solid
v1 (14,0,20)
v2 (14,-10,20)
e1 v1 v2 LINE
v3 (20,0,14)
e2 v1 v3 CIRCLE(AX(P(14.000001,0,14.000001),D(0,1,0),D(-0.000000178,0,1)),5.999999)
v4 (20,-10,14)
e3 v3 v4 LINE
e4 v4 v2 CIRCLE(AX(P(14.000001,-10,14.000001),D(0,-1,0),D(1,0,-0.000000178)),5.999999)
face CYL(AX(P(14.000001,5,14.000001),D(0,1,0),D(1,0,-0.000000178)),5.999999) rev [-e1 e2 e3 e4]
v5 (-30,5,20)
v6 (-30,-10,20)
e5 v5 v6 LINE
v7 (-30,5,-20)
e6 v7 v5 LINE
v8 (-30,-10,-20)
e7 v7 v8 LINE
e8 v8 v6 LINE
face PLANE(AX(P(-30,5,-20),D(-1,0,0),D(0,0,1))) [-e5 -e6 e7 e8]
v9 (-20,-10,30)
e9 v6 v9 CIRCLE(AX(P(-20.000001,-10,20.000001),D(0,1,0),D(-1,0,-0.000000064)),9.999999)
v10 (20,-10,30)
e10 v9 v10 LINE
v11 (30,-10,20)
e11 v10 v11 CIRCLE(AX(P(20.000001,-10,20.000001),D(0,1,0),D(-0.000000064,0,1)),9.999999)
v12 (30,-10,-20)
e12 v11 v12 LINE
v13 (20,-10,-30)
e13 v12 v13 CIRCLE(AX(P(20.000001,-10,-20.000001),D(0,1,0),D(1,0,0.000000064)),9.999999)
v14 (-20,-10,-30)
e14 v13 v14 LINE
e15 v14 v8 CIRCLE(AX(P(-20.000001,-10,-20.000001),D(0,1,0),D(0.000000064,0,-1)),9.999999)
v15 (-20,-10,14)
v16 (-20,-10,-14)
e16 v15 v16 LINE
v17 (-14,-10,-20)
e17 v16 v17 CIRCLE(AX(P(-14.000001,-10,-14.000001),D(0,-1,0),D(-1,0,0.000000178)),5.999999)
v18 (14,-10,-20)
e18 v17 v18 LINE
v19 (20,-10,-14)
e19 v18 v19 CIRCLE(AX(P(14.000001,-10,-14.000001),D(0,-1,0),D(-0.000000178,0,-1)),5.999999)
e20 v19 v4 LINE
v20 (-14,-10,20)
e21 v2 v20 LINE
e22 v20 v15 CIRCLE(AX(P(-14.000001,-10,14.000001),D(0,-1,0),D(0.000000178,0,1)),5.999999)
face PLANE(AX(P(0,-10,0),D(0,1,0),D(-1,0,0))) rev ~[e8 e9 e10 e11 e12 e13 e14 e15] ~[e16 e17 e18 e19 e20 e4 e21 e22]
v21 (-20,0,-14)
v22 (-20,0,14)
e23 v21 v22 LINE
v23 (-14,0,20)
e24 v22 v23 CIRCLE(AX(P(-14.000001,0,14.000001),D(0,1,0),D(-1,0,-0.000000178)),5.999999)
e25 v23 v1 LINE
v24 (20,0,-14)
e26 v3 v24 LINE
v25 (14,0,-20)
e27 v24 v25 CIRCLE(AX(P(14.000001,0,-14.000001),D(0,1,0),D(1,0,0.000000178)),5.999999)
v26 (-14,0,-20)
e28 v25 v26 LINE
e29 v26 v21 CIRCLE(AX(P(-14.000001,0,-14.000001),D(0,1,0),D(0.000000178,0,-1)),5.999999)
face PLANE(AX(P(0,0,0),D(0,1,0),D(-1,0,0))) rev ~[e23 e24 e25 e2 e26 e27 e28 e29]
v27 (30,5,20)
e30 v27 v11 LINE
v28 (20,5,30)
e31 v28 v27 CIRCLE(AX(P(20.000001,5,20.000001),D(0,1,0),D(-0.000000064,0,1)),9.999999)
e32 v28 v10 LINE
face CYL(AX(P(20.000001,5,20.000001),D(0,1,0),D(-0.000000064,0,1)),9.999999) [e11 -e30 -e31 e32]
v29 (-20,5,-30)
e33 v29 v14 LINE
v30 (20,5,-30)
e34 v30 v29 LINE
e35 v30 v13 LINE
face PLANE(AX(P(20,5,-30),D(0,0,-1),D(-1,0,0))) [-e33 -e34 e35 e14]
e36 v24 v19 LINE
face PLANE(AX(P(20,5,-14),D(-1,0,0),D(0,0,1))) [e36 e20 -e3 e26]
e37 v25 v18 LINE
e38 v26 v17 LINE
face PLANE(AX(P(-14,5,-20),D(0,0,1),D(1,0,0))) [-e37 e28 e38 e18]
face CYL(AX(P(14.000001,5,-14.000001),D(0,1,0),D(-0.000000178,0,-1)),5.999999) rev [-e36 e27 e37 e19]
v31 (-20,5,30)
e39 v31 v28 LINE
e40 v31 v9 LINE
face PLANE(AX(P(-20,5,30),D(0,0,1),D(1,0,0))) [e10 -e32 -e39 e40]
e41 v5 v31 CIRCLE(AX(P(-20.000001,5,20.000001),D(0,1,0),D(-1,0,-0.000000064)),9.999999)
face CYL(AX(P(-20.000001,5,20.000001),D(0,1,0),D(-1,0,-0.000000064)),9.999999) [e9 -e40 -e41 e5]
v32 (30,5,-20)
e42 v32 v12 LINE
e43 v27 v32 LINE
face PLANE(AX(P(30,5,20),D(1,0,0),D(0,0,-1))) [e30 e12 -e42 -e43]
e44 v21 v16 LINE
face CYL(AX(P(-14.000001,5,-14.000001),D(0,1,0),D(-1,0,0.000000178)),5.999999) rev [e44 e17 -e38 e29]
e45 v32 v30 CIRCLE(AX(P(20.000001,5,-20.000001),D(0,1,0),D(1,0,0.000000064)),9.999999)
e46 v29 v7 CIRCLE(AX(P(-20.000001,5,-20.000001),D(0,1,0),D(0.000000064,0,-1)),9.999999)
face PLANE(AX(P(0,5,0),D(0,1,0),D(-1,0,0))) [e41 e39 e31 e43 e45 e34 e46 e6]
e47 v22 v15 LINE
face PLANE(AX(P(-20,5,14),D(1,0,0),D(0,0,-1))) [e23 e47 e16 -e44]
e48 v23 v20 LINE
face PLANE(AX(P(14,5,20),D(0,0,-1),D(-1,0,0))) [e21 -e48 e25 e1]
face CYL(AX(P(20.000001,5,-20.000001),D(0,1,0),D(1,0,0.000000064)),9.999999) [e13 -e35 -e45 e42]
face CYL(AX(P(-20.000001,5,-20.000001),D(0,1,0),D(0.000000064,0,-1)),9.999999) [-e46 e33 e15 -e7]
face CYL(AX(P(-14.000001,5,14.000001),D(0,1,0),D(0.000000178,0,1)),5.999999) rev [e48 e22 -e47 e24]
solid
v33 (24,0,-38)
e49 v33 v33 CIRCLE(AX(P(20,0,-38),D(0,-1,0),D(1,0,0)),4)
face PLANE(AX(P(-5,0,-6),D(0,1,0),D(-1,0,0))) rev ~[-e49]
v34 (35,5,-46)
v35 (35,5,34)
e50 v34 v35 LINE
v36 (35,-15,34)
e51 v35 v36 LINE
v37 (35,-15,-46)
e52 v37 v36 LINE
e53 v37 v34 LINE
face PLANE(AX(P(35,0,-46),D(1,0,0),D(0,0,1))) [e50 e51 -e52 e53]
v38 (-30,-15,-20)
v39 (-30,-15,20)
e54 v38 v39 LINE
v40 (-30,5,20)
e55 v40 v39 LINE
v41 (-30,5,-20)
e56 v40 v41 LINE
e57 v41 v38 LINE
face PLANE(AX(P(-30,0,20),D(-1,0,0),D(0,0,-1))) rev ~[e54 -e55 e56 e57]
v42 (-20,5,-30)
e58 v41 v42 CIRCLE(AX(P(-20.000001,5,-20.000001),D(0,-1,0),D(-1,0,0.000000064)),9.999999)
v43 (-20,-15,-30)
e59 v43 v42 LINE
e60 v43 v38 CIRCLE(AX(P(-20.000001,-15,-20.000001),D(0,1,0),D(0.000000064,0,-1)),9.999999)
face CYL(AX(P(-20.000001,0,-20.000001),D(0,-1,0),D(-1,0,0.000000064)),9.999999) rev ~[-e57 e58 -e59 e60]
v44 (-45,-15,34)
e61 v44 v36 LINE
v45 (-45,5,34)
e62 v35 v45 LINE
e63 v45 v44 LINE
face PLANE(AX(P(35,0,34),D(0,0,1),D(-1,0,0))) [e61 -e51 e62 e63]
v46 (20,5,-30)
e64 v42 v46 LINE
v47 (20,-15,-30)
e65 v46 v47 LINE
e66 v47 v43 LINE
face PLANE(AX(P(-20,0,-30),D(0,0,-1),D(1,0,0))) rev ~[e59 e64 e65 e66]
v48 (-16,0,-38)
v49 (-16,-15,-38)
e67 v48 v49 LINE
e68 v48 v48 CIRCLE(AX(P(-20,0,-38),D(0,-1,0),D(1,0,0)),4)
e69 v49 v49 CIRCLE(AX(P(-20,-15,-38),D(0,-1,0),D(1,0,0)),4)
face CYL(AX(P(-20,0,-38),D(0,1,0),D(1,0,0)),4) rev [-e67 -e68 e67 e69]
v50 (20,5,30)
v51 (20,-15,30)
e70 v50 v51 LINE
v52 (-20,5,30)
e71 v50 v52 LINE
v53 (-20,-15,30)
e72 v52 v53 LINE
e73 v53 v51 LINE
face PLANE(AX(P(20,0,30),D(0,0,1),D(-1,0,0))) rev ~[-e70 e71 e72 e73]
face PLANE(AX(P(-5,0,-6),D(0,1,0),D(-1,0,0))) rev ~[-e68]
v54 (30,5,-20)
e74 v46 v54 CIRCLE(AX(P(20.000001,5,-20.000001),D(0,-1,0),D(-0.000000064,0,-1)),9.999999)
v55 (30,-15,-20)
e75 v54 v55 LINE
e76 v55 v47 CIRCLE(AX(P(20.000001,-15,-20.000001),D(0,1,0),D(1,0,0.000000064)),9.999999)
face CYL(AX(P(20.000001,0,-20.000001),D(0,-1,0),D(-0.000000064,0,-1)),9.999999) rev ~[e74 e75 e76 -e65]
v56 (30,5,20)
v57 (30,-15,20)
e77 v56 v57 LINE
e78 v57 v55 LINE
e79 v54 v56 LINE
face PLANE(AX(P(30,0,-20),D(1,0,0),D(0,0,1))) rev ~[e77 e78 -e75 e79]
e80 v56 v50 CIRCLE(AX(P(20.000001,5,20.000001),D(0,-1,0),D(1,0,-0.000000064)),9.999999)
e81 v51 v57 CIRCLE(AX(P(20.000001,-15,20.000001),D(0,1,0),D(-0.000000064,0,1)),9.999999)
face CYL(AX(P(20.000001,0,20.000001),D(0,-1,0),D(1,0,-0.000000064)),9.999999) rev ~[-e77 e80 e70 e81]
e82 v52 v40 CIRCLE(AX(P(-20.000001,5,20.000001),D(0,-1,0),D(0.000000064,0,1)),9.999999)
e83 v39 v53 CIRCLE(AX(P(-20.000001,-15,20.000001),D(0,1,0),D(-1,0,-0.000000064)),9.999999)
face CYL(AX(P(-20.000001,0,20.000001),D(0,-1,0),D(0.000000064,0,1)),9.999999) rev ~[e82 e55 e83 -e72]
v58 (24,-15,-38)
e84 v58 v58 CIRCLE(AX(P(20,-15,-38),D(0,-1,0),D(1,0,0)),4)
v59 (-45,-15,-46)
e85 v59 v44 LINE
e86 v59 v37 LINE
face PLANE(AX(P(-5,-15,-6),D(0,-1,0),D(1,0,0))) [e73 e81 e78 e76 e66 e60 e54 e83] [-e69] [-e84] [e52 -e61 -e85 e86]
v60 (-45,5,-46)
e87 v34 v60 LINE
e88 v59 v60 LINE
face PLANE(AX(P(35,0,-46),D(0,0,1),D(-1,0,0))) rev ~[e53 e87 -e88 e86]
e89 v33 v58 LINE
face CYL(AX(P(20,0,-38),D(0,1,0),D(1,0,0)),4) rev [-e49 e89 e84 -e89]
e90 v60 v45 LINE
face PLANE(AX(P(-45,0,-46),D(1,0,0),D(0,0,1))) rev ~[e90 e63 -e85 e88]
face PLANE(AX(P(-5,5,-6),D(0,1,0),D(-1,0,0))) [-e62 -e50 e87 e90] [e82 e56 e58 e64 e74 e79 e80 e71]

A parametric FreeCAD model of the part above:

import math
import FreeCAD as App
import Part
import Sketcher
from FreeCAD import Vector
Q = App.Units.Quantity


def add_polygon(sketch, points):
    """Adds a closed chain of lines whose ends are joined by coincident constraints."""
    first, n = sketch.GeometryCount, len(points)
    for a, b in zip(points, points[1:] + points[:1]):
        sketch.addGeometry(Part.LineSegment(App.Vector(*a, 0), App.Vector(*b, 0)), False)
    for i in range(n):
        sketch.addConstraint(Sketcher.Constraint("Coincident", first + i, 2, first + (i + 1) % n, 1))

doc = App.newDocument("Part")
body = doc.addObject("PartDesign::Body", "Body")

# Sketch on XZ plane
sketch1 = body.newObject("Sketcher::SketchObject", "Sketch")
sketch1.AttachmentSupport = (doc.getObject("XZ_Plane"), [""])
sketch1.MapMode = "FlatFace"
add_polygon(sketch1, [(-45, 34), (-45, -46), (35, -46), (35, 34)])  # lines 0-3
sketch1.addGeometry(Part.Circle(Vector(-20, -38, 0), Vector(0, 0, 1), 4), False)  # 4
sketch1.addGeometry(Part.Circle(Vector(20, -38, 0), Vector(0, 0, 1), 4), False)  # 5
sketch1.addGeometry(Part.LineSegment(Vector(30, 20, 0), Vector(30, -20, 0)), False)  # 6
sketch1.addGeometry(Part.ArcOfCircle(Part.Circle(Vector(20, -20, 0), Vector(0, 0, 1), 10), math.radians(-90), math.radians(0)), False)  # 7
sketch1.addGeometry(Part.LineSegment(Vector(20, -30, 0), Vector(-20, -30, 0)), False)  # 8
sketch1.addGeometry(Part.ArcOfCircle(Part.Circle(Vector(-20, -20, 0), Vector(0, 0, 1), 10), math.radians(180), math.radians(270)), False)  # 9
sketch1.addGeometry(Part.LineSegment(Vector(-30, -20, 0), Vector(-30, 20, 0)), False)  # 10
sketch1.addGeometry(Part.ArcOfCircle(Part.Circle(Vector(-20, 20, 0), Vector(0, 0, 1), 10), math.radians(90), math.radians(180)), False)  # 11
sketch1.addGeometry(Part.LineSegment(Vector(-20, 30, 0), Vector(20, 30, 0)), False)  # 12
sketch1.addGeometry(Part.ArcOfCircle(Part.Circle(Vector(20, 20, 0), Vector(0, 0, 1), 10), math.radians(0), math.radians(90)), False)  # 13
sketch1.addConstraint([
    Sketcher.Constraint("Tangent", 6, 2, 7, 2),
    Sketcher.Constraint("Tangent", 7, 1, 8, 1),
    Sketcher.Constraint("Tangent", 8, 2, 9, 2),
    Sketcher.Constraint("Tangent", 9, 1, 10, 1),
    Sketcher.Constraint("Tangent", 10, 2, 11, 2),
    Sketcher.Constraint("Tangent", 11, 1, 12, 1),
    Sketcher.Constraint("Tangent", 12, 2, 13, 2),
    Sketcher.Constraint("Tangent", 13, 1, 6, 1),
    Sketcher.Constraint("Vertical", 0),
    Sketcher.Constraint("Horizontal", 1),
    Sketcher.Constraint("Vertical", 2),
    Sketcher.Constraint("Horizontal", 3),
    Sketcher.Constraint("Vertical", 6),
    Sketcher.Constraint("Horizontal", 8),
    Sketcher.Constraint("Vertical", 10),
    Sketcher.Constraint("Horizontal", 12),
    Sketcher.Constraint("Equal", 4, 5),
    Sketcher.Constraint("Equal", 7, 9),
    Sketcher.Constraint("Equal", 9, 11),
    Sketcher.Constraint("Equal", 11, 13),
    Sketcher.Constraint("Symmetric", 7, 3, 11, 3, -1, 1),
    Sketcher.Constraint("Symmetric", 4, 3, 5, 3, -2),
    Sketcher.Constraint("Vertical", 5, 3, 7, 3),
    Sketcher.Constraint("Equal", 3, 0),
    Sketcher.Constraint("Equal", 12, 6),
    Sketcher.Constraint("Diameter", 4, Q("8 mm")),
    Sketcher.Constraint("Radius", 7, Q("9.999999 mm")),
    Sketcher.Constraint("DistanceX", 1, 1, 1, 2, Q("80 mm")),
    Sketcher.Constraint("DistanceX", 8, 2, 8, 1, Q("40 mm")),
    Sketcher.Constraint("DistanceY", 4, 3, -1, 1, Q("38 mm")),
    Sketcher.Constraint("DistanceX", 0, 2, -1, 1, Q("45 mm")),
    Sketcher.Constraint("DistanceY", 0, 2, -1, 1, Q("46 mm")),
])
pad1 = body.newObject("PartDesign::Pad", "Pad")
pad1.Profile = sketch1
pad1.Length = 15

# Sketch on XZ plane
sketch2 = body.newObject("Sketcher::SketchObject", "Sketch001")
sketch2.AttachmentSupport = (doc.getObject("XZ_Plane"), [""])
sketch2.MapMode = "FlatFace"
add_polygon(sketch2, [(35, 34), (35, -46), (-45, -46), (-45, 34)])  # lines 0-3
sketch2.addGeometry(Part.ArcOfCircle(Part.Circle(Vector(-20, -20, 0), Vector(0, 0, 1), 10), math.radians(180), math.radians(270)), False)  # 4
sketch2.addGeometry(Part.LineSegment(Vector(-20, -30, 0), Vector(20, -30, 0)), False)  # 5
sketch2.addGeometry(Part.ArcOfCircle(Part.Circle(Vector(20, -20, 0), Vector(0, 0, 1), 10), math.radians(-90), math.radians(0)), False)  # 6
sketch2.addGeometry(Part.LineSegment(Vector(30, -20, 0), Vector(30, 20, 0)), False)  # 7
sketch2.addGeometry(Part.ArcOfCircle(Part.Circle(Vector(20, 20, 0), Vector(0, 0, 1), 10), math.radians(0), math.radians(90)), False)  # 8
sketch2.addGeometry(Part.LineSegment(Vector(20, 30, 0), Vector(-20, 30, 0)), False)  # 9
sketch2.addGeometry(Part.ArcOfCircle(Part.Circle(Vector(-20, 20, 0), Vector(0, 0, 1), 10), math.radians(90), math.radians(180)), False)  # 10
sketch2.addGeometry(Part.LineSegment(Vector(-30, 20, 0), Vector(-30, -20, 0)), False)  # 11
sketch2.addConstraint([
    Sketcher.Constraint("Tangent", 4, 2, 5, 1),
    Sketcher.Constraint("Tangent", 5, 2, 6, 1),
    Sketcher.Constraint("Tangent", 6, 2, 7, 1),
    Sketcher.Constraint("Tangent", 7, 2, 8, 1),
    Sketcher.Constraint("Tangent", 8, 2, 9, 1),
    Sketcher.Constraint("Tangent", 9, 2, 10, 1),
    Sketcher.Constraint("Tangent", 10, 2, 11, 1),
    Sketcher.Constraint("Tangent", 11, 2, 4, 1),
    Sketcher.Constraint("Vertical", 0),
    Sketcher.Constraint("Horizontal", 1),
    Sketcher.Constraint("Vertical", 2),
    Sketcher.Constraint("Horizontal", 3),
    Sketcher.Constraint("Horizontal", 5),
    Sketcher.Constraint("Vertical", 7),
    Sketcher.Constraint("Horizontal", 9),
    Sketcher.Constraint("Vertical", 11),
    Sketcher.Constraint("Equal", 4, 6),
    Sketcher.Constraint("Equal", 6, 8),
    Sketcher.Constraint("Equal", 8, 10),
    Sketcher.Constraint("Symmetric", 4, 3, 8, 3, -1, 1),
    Sketcher.Constraint("Equal", 3, 0),
    Sketcher.Constraint("Equal", 9, 7),
    Sketcher.Constraint("Radius", 4, Q("9.999999 mm")),
    Sketcher.Constraint("DistanceX", 1, 2, 1, 1, Q("80 mm")),
    Sketcher.Constraint("DistanceX", 5, 1, 5, 2, Q("40 mm")),
    Sketcher.Constraint("DistanceX", -1, 1, 0, 2, Q("35 mm")),
    Sketcher.Constraint("DistanceY", 0, 2, -1, 1, Q("46 mm")),
])
pad2 = body.newObject("PartDesign::Pad", "Pad001")
pad2.Profile = sketch2
pad2.Length = 5
pad2.Reversed = True
body2 = doc.addObject("PartDesign::Body", "Body001")

# Sketch on XZ plane
sketch3 = body2.newObject("Sketcher::SketchObject", "Sketch002")
sketch3.AttachmentSupport = (doc.getObject("XZ_Plane001"), [""])
sketch3.MapMode = "FlatFace"
sketch3.AttachmentOffset = App.Placement(Vector(0, 0, -5), App.Rotation())
sketch3.addGeometry([
    Part.ArcOfCircle(Part.Circle(Vector(20, -20, 0), Vector(0, 0, 1), 10), math.radians(-90), math.radians(0)),  # 0
    Part.LineSegment(Vector(20, -30, 0), Vector(-20, -30, 0)),  # 1
    Part.ArcOfCircle(Part.Circle(Vector(-20, -20, 0), Vector(0, 0, 1), 10), math.radians(180), math.radians(270)),  # 2
    Part.LineSegment(Vector(-30, -20, 0), Vector(-30, 20, 0)),  # 3
    Part.ArcOfCircle(Part.Circle(Vector(-20, 20, 0), Vector(0, 0, 1), 10), math.radians(90), math.radians(180)),  # 4
    Part.LineSegment(Vector(-20, 30, 0), Vector(20, 30, 0)),  # 5
    Part.ArcOfCircle(Part.Circle(Vector(20, 20, 0), Vector(0, 0, 1), 10), math.radians(0), math.radians(90)),  # 6
    Part.LineSegment(Vector(30, 20, 0), Vector(30, -20, 0)),  # 7
    Part.ArcOfCircle(Part.Circle(Vector(-14, -14, 0), Vector(0, 0, 1), 6), math.radians(180), math.radians(270)),  # 8
    Part.LineSegment(Vector(-14, -20, 0), Vector(14, -20, 0)),  # 9
    Part.ArcOfCircle(Part.Circle(Vector(14, -14, 0), Vector(0, 0, 1), 6), math.radians(-90), math.radians(0)),  # 10
    Part.LineSegment(Vector(20, -14, 0), Vector(20, 14, 0)),  # 11
    Part.ArcOfCircle(Part.Circle(Vector(14, 14, 0), Vector(0, 0, 1), 6), math.radians(0), math.radians(90)),  # 12
    Part.LineSegment(Vector(14, 20, 0), Vector(-14, 20, 0)),  # 13
    Part.ArcOfCircle(Part.Circle(Vector(-14, 14, 0), Vector(0, 0, 1), 6), math.radians(90), math.radians(180)),  # 14
    Part.LineSegment(Vector(-20, 14, 0), Vector(-20, -14, 0)),  # 15
], False)
sketch3.addConstraint([
    Sketcher.Constraint("Tangent", 0, 1, 1, 1),
    Sketcher.Constraint("Tangent", 1, 2, 2, 2),
    Sketcher.Constraint("Tangent", 2, 1, 3, 1),
    Sketcher.Constraint("Tangent", 3, 2, 4, 2),
    Sketcher.Constraint("Tangent", 4, 1, 5, 1),
    Sketcher.Constraint("Tangent", 5, 2, 6, 2),
    Sketcher.Constraint("Tangent", 6, 1, 7, 1),
    Sketcher.Constraint("Tangent", 7, 2, 0, 2),
    Sketcher.Constraint("Tangent", 8, 2, 9, 1),
    Sketcher.Constraint("Tangent", 9, 2, 10, 1),
    Sketcher.Constraint("Tangent", 10, 2, 11, 1),
    Sketcher.Constraint("Tangent", 11, 2, 12, 1),
    Sketcher.Constraint("Tangent", 12, 2, 13, 1),
    Sketcher.Constraint("Tangent", 13, 2, 14, 1),
    Sketcher.Constraint("Tangent", 14, 2, 15, 1),
    Sketcher.Constraint("Tangent", 15, 2, 8, 1),
    Sketcher.Constraint("Horizontal", 1),
    Sketcher.Constraint("Vertical", 3),
    Sketcher.Constraint("Horizontal", 5),
    Sketcher.Constraint("Vertical", 7),
    Sketcher.Constraint("Horizontal", 9),
    Sketcher.Constraint("Vertical", 11),
    Sketcher.Constraint("Horizontal", 13),
    Sketcher.Constraint("Vertical", 15),
    Sketcher.Constraint("Equal", 0, 2),
    Sketcher.Constraint("Equal", 2, 4),
    Sketcher.Constraint("Equal", 4, 6),
    Sketcher.Constraint("Equal", 8, 10),
    Sketcher.Constraint("Equal", 10, 12),
    Sketcher.Constraint("Equal", 12, 14),
    Sketcher.Constraint("Symmetric", 0, 3, 4, 3, -1, 1),
    Sketcher.Constraint("Symmetric", 8, 3, 12, 3, -1, 1),
    Sketcher.Constraint("Horizontal", 7, 2, 8, 2),
    Sketcher.Constraint("Vertical", 5, 2, 10, 2),
    Sketcher.Constraint("Equal", 5, 3),
    Sketcher.Constraint("Radius", 0, Q("9.999999 mm")),
    Sketcher.Constraint("Radius", 8, Q("5.999999 mm")),
    Sketcher.Constraint("DistanceX", 1, 2, 1, 1, Q("40 mm")),
])
pad3 = body2.newObject("PartDesign::Pad", "Pad002")
pad3.Profile = sketch3
pad3.Length = 15

# Sketch on XZ plane
sketch4 = body2.newObject("Sketcher::SketchObject", "Sketch003")
sketch4.AttachmentSupport = (doc.getObject("XZ_Plane001"), [""])
sketch4.MapMode = "FlatFace"
sketch4.AttachmentOffset = App.Placement(Vector(0, 0, -5), App.Rotation())
sketch4.addGeometry([
    Part.ArcOfCircle(Part.Circle(Vector(14, -14, 0), Vector(0, 0, 1), 6), math.radians(-90), math.radians(0)),  # 0
    Part.LineSegment(Vector(14, -20, 0), Vector(-14, -20, 0)),  # 1
    Part.ArcOfCircle(Part.Circle(Vector(-14, -14, 0), Vector(0, 0, 1), 6), math.radians(180), math.radians(270)),  # 2
    Part.LineSegment(Vector(-20, -14, 0), Vector(-20, 14, 0)),  # 3
    Part.ArcOfCircle(Part.Circle(Vector(-14, 14, 0), Vector(0, 0, 1), 6), math.radians(90), math.radians(180)),  # 4
    Part.LineSegment(Vector(-14, 20, 0), Vector(14, 20, 0)),  # 5
    Part.ArcOfCircle(Part.Circle(Vector(14, 14, 0), Vector(0, 0, 1), 6), math.radians(0), math.radians(90)),  # 6
    Part.LineSegment(Vector(20, 14, 0), Vector(20, -14, 0)),  # 7
], False)
sketch4.addConstraint([
    Sketcher.Constraint("Tangent", 0, 1, 1, 1),
    Sketcher.Constraint("Tangent", 1, 2, 2, 2),
    Sketcher.Constraint("Tangent", 2, 1, 3, 1),
    Sketcher.Constraint("Tangent", 3, 2, 4, 2),
    Sketcher.Constraint("Tangent", 4, 1, 5, 1),
    Sketcher.Constraint("Tangent", 5, 2, 6, 2),
    Sketcher.Constraint("Tangent", 6, 1, 7, 1),
    Sketcher.Constraint("Tangent", 7, 2, 0, 2),
    Sketcher.Constraint("Horizontal", 1),
    Sketcher.Constraint("Vertical", 3),
    Sketcher.Constraint("Horizontal", 5),
    Sketcher.Constraint("Vertical", 7),
    Sketcher.Constraint("Equal", 0, 2),
    Sketcher.Constraint("Equal", 2, 4),
    Sketcher.Constraint("Equal", 4, 6),
    Sketcher.Constraint("Symmetric", 0, 3, 4, 3, -1, 1),
    Sketcher.Constraint("Equal", 5, 3),
    Sketcher.Constraint("Radius", 0, Q("5.999999 mm")),
    Sketcher.Constraint("DistanceX", 1, 2, 1, 1, Q("28 mm")),
])
pad4 = body2.newObject("PartDesign::Pad", "Pad003")
pad4.Profile = sketch4
pad4.Length = 5

doc.recompute()
